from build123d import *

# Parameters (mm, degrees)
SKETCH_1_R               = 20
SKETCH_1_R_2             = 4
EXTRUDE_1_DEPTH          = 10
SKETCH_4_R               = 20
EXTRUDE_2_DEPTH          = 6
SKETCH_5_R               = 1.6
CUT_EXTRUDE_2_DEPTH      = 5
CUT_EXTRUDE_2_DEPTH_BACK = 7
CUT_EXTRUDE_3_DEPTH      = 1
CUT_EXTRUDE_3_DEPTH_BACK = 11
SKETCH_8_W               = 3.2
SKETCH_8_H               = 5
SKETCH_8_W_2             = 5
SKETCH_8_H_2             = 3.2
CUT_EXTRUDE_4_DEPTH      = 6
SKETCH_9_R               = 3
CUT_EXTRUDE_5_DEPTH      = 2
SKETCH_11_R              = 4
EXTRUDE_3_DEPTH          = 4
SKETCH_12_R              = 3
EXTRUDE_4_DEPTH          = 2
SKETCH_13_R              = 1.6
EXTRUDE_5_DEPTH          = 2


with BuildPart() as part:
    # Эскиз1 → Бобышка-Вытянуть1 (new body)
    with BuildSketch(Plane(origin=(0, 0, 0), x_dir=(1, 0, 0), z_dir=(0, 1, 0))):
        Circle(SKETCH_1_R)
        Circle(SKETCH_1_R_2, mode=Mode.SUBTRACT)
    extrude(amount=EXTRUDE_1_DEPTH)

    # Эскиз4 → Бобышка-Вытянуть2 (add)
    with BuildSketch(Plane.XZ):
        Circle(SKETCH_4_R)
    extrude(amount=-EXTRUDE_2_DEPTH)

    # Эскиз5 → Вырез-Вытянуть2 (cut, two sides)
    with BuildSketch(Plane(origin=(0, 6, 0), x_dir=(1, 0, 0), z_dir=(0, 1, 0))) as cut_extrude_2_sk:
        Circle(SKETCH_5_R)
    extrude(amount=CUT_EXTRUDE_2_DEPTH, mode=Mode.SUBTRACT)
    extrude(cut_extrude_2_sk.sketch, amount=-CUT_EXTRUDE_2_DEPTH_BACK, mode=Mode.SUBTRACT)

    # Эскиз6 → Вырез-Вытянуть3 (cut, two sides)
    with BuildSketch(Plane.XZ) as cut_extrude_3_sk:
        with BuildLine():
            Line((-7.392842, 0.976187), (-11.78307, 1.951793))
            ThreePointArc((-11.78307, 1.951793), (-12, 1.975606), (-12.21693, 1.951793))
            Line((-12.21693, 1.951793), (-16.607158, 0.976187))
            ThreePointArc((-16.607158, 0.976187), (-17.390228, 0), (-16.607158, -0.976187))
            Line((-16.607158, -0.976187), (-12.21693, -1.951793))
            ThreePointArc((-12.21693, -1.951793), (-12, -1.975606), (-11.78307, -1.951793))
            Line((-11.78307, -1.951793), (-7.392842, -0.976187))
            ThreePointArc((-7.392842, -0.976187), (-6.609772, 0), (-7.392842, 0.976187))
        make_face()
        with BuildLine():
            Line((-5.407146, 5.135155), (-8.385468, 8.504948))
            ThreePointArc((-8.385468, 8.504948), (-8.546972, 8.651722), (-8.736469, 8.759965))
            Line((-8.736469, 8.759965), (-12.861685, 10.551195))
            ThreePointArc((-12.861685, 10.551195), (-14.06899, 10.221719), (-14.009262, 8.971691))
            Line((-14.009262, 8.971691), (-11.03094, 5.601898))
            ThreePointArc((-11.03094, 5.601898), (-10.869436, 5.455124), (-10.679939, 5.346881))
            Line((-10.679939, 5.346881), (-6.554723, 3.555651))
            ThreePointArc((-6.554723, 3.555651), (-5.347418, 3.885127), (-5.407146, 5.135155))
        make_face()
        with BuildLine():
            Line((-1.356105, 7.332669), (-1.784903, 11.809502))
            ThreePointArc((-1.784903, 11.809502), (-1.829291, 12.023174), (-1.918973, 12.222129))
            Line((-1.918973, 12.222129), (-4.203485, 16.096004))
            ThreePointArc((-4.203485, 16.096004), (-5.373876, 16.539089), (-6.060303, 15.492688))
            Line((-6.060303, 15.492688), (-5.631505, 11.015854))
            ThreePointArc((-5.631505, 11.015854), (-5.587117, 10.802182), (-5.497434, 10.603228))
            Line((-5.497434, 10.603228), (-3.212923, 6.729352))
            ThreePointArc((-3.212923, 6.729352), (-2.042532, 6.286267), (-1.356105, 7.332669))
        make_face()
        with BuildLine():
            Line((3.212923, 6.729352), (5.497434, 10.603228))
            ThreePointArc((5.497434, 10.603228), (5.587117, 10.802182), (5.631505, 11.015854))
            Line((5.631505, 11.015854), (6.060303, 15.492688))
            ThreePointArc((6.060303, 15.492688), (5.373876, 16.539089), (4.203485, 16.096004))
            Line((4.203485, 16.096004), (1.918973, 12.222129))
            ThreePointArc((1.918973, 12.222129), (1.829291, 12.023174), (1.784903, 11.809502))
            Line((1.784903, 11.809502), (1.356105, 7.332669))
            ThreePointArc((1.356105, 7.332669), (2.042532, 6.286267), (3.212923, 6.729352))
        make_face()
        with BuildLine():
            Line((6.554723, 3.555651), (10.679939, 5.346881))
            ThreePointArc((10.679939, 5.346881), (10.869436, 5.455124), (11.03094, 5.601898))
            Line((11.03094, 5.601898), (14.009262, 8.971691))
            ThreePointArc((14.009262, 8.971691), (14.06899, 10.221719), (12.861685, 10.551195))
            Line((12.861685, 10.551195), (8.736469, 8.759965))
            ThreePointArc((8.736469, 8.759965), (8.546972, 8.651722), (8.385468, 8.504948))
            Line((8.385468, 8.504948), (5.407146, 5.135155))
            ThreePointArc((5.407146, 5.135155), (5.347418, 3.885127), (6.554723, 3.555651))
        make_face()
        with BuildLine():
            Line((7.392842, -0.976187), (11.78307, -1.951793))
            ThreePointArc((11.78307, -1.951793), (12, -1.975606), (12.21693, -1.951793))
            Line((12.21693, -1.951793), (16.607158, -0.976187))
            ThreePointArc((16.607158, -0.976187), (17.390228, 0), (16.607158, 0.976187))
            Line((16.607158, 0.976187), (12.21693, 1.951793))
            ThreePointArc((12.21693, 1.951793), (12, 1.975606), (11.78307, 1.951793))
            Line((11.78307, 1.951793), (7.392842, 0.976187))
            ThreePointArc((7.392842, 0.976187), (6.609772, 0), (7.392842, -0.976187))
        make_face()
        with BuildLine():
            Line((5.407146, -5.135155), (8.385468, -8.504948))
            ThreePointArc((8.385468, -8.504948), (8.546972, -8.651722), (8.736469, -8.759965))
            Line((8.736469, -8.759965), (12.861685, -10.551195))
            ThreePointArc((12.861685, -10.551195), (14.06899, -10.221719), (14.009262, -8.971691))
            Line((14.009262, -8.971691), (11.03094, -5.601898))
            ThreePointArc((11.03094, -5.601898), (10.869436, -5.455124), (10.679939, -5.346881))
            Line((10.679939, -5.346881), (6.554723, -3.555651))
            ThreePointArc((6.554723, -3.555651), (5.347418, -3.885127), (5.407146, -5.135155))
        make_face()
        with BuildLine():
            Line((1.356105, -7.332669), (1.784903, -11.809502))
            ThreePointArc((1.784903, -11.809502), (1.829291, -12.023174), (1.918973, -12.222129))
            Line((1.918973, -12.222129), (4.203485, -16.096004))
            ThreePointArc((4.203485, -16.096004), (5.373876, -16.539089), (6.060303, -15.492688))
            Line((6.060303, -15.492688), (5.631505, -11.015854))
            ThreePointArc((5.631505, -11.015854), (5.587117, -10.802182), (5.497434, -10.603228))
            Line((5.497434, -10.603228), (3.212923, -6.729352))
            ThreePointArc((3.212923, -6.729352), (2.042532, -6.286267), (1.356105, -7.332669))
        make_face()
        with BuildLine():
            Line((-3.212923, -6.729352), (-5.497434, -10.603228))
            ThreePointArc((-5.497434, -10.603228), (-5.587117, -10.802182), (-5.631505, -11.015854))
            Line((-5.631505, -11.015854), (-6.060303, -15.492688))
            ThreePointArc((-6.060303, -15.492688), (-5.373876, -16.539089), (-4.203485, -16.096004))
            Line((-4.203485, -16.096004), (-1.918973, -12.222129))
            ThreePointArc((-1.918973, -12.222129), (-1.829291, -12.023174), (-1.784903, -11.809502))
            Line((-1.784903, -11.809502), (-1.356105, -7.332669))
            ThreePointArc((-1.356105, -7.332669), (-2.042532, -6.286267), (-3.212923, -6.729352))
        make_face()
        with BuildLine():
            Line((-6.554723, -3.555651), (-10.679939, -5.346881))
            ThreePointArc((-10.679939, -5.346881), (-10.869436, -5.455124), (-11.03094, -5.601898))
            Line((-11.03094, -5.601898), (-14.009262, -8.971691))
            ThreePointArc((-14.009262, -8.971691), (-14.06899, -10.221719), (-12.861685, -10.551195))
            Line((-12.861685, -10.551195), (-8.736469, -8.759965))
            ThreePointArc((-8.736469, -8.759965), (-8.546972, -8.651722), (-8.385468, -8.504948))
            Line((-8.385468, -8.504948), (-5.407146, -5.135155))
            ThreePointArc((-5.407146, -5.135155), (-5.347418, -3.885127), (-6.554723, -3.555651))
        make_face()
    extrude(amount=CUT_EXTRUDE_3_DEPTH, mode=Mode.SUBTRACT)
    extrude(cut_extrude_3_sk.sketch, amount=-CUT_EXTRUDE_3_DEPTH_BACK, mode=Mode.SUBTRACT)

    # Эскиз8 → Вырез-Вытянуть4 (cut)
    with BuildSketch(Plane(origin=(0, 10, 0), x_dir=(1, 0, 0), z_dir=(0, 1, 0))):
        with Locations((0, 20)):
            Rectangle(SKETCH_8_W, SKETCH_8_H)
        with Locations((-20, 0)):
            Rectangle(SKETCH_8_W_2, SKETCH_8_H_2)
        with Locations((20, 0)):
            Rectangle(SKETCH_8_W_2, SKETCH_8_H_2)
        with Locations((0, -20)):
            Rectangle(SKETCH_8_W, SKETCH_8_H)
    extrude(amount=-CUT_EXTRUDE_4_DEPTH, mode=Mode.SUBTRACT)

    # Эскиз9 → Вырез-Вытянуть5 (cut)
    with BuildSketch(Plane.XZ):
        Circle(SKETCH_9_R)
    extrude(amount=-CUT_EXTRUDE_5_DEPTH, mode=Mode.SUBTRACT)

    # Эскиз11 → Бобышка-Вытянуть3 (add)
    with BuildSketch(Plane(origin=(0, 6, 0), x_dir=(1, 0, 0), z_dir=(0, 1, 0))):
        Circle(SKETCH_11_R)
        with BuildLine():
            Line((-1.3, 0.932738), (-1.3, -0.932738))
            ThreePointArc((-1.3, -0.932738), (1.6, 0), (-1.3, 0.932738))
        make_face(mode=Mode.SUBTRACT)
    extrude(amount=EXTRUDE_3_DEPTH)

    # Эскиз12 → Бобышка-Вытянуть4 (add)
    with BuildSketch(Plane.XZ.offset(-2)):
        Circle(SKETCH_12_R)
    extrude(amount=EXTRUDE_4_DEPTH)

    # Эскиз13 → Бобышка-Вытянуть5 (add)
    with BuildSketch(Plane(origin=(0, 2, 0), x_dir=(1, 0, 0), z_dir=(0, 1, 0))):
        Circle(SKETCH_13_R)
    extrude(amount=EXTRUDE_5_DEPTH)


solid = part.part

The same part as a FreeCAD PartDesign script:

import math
import FreeCAD as App
import Part
import Sketcher
from FreeCAD import Vector
Q = App.Units.Quantity

doc = App.newDocument("Part")
body = doc.addObject("PartDesign::Body", "Body")

sketch1 = body.newObject("Sketcher::SketchObject", "Sketch")
sketch1.AttachmentSupport = (doc.getObject("XZ_Plane"), [""])
sketch1.MapMode = "FlatFace"
sketch1.addGeometry(Part.Circle(Vector(0, 0, 0), Vector(0, 0, 1), 20), False)
sketch1.addGeometry(Part.Circle(Vector(0, 0, 0), Vector(0, 0, 1), 4), False)
sketch1.addConstraint(Sketcher.Constraint("Coincident", 0, 3, -1, 1))
sketch1.addConstraint(Sketcher.Constraint("Coincident", 1, 3, -1, 1))
sketch1.addConstraint(Sketcher.Constraint("Diameter", 0, Q("40 mm")))
sketch1.addConstraint(Sketcher.Constraint("Diameter", 1, Q("8 mm")))
pad1 = body.newObject("PartDesign::Pad", "Pad")
pad1.Profile = sketch1
pad1.Length = 10
pad1.Reversed = True

sketch2 = body.newObject("Sketcher::SketchObject", "Sketch001")
sketch2.AttachmentSupport = (doc.getObject("XZ_Plane"), [""])
sketch2.MapMode = "FlatFace"
sketch2.addGeometry(Part.Circle(Vector(0, 0, 0), Vector(0, 0, 1), 20), False)
sketch2.addConstraint(Sketcher.Constraint("Coincident", 0, 3, -1, 1))
sketch2.addConstraint(Sketcher.Constraint("Diameter", 0, Q("40 mm")))
pad2 = body.newObject("PartDesign::Pad", "Pad001")
pad2.Profile = sketch2
pad2.Length = 6
pad2.Reversed = True

sketch3 = body.newObject("Sketcher::SketchObject", "Sketch002")
sketch3.AttachmentSupport = (doc.getObject("XZ_Plane"), [""])
sketch3.MapMode = "FlatFace"
sketch3.AttachmentOffset = App.Placement(Vector(0, 0, -6), App.Rotation())
sketch3.addGeometry(Part.Circle(Vector(0, 0, 0), Vector(0, 0, 1), 1.6), False)
sketch3.addConstraint(Sketcher.Constraint("Coincident", 0, 3, -1, 1))
sketch3.addConstraint(Sketcher.Constraint("Diameter", 0, Q("3.2 mm")))
pocket1 = body.newObject("PartDesign::Pocket", "Pocket")
pocket1.Profile = sketch3
pocket1.Type = "ThroughAll"
pocket1.Midplane = True

sketch4 = body.newObject("Sketcher::SketchObject", "Sketch003")
sketch4.AttachmentSupport = (doc.getObject("XZ_Plane"), [""])
sketch4.MapMode = "FlatFace"
sketch4.addGeometry(Part.LineSegment(Vector(-7.39, 0.98, 0), Vector(-11.78, 1.95, 0)), False)
sketch4.addGeometry(Part.ArcOfCircle(Part.Circle(Vector(-12, 0.98, 0), Vector(0, 0, 1), 1), math.radians(77), math.radians(103)), False)
sketch4.addGeometry(Part.LineSegment(Vector(-12.22, 1.95, 0), Vector(-16.61, 0.98, 0)), False)
sketch4.addGeometry(Part.ArcOfCircle(Part.Circle(Vector(-16.39, 0, 0), Vector(0, 0, 1), 1), math.radians(103), math.radians(257)), False)
sketch4.addGeometry(Part.LineSegment(Vector(-16.61, -0.98, 0), Vector(-12.22, -1.95, 0)), False)
sketch4.addGeometry(Part.ArcOfCircle(Part.Circle(Vector(-12, -0.98, 0), Vector(0, 0, 1), 1), math.radians(-103), math.radians(-77)), False)
sketch4.addGeometry(Part.LineSegment(Vector(-11.78, -1.95, 0), Vector(-7.39, -0.98, 0)), False)
sketch4.addGeometry(Part.ArcOfCircle(Part.Circle(Vector(-7.61, 0, 0), Vector(0, 0, 1), 1), math.radians(-77), math.radians(77)), False)
sketch4.addGeometry(Part.LineSegment(Vector(-5.41, 5.14, 0), Vector(-8.39, 8.5, 0)), False)
sketch4.addGeometry(Part.ArcOfCircle(Part.Circle(Vector(-9.13, 7.84, 0), Vector(0, 0, 1), 1), math.radians(41), math.radians(67)), False)
sketch4.addGeometry(Part.LineSegment(Vector(-8.74, 8.76, 0), Vector(-12.86, 10.55, 0)), False)
sketch4.addGeometry(Part.ArcOfCircle(Part.Circle(Vector(-13.26, 9.63, 0), Vector(0, 0, 1), 1), math.radians(67), math.radians(221)), False)
sketch4.addGeometry(Part.LineSegment(Vector(-14.01, 8.97, 0), Vector(-11.03, 5.6, 0)), False)
sketch4.addGeometry(Part.ArcOfCircle(Part.Circle(Vector(-10.28, 6.26, 0), Vector(0, 0, 1), 1), math.radians(-139), math.radians(-113)), False)
sketch4.addGeometry(Part.LineSegment(Vector(-10.68, 5.35, 0), Vector(-6.55, 3.56, 0)), False)
sketch4.addGeometry(Part.ArcOfCircle(Part.Circle(Vector(-6.16, 4.47, 0), Vector(0, 0, 1), 1), math.radians(-113), math.radians(41)), False)
sketch4.addGeometry(Part.LineSegment(Vector(-1.36, 7.33, 0), Vector(-1.78, 11.81, 0)), False)
sketch4.addGeometry(Part.ArcOfCircle(Part.Circle(Vector(-2.78, 11.71, 0), Vector(0, 0, 1), 1), math.radians(5), math.radians(31)), False)
sketch4.addGeometry(Part.LineSegment(Vector(-1.92, 12.22, 0), Vector(-4.2, 16.1, 0)), False)
sketch4.addGeometry(Part.ArcOfCircle(Part.Circle(Vector(-5.06, 15.59, 0), Vector(0, 0, 1), 1), math.radians(31), math.radians(185)), False)
sketch4.addGeometry(Part.LineSegment(Vector(-6.06, 15.49, 0), Vector(-5.63, 11.02, 0)), False)
sketch4.addGeometry(Part.ArcOfCircle(Part.Circle(Vector(-4.64, 11.11, 0), Vector(0, 0, 1), 1), math.radians(-175), math.radians(-149)), False)
sketch4.addGeometry(Part.LineSegment(Vector(-5.5, 10.6, 0), Vector(-3.21, 6.73, 0)), False)
sketch4.addGeometry(Part.ArcOfCircle(Part.Circle(Vector(-2.35, 7.24, 0), Vector(0, 0, 1), 1), math.radians(-149), math.radians(5)), False)
sketch4.addGeometry(Part.LineSegment(Vector(3.21, 6.73, 0), Vector(5.5, 10.6, 0)), False)
sketch4.addGeometry(Part.ArcOfCircle(Part.Circle(Vector(4.64, 11.11, 0), Vector(0, 0, 1), 1), math.radians(-31), math.radians(-5)), False)
sketch4.addGeometry(Part.LineSegment(Vector(5.63, 11.02, 0), Vector(6.06, 15.49, 0)), False)
sketch4.addGeometry(Part.ArcOfCircle(Part.Circle(Vector(5.06, 15.59, 0), Vector(0, 0, 1), 1), math.radians(-5), math.radians(149)), False)
sketch4.addGeometry(Part.LineSegment(Vector(4.2, 16.1, 0), Vector(1.92, 12.22, 0)), False)
sketch4.addGeometry(Part.ArcOfCircle(Part.Circle(Vector(2.78, 11.71, 0), Vector(0, 0, 1), 1), math.radians(149), math.radians(175)), False)
sketch4.addGeometry(Part.LineSegment(Vector(1.78, 11.81, 0), Vector(1.36, 7.33, 0)), False)
sketch4.addGeometry(Part.ArcOfCircle(Part.Circle(Vector(2.35, 7.24, 0), Vector(0, 0, 1), 1), math.radians(175), math.radians(329)), False)
sketch4.addGeometry(Part.LineSegment(Vector(6.55, 3.56, 0), Vector(10.68, 5.35, 0)), False)
sketch4.addGeometry(Part.ArcOfCircle(Part.Circle(Vector(10.28, 6.26, 0), Vector(0, 0, 1), 1), math.radians(-67), math.radians(-41)), False)
sketch4.addGeometry(Part.LineSegment(Vector(11.03, 5.6, 0), Vector(14.01, 8.97, 0)), False)
sketch4.addGeometry(Part.ArcOfCircle(Part.Circle(Vector(13.26, 9.63, 0), Vector(0, 0, 1), 1), math.radians(-41), math.radians(113)), False)
sketch4.addGeometry(Part.LineSegment(Vector(12.86, 10.55, 0), Vector(8.74, 8.76, 0)), False)
sketch4.addGeometry(Part.ArcOfCircle(Part.Circle(Vector(9.13, 7.84, 0), Vector(0, 0, 1), 1), math.radians(113), math.radians(139)), False)
sketch4.addGeometry(Part.LineSegment(Vector(8.39, 8.5, 0), Vector(5.41, 5.14, 0)), False)
sketch4.addGeometry(Part.ArcOfCircle(Part.Circle(Vector(6.16, 4.47, 0), Vector(0, 0, 1), 1), math.radians(139), math.radians(293)), False)
sketch4.addGeometry(Part.LineSegment(Vector(7.39, -0.98, 0), Vector(11.78, -1.95, 0)), False)
sketch4.addGeometry(Part.ArcOfCircle(Part.Circle(Vector(12, -0.98, 0), Vector(0, 0, 1), 1), math.radians(-103), math.radians(-77)), False)
sketch4.addGeometry(Part.LineSegment(Vector(12.22, -1.95, 0), Vector(16.61, -0.98, 0)), False)
sketch4.addGeometry(Part.ArcOfCircle(Part.Circle(Vector(16.39, 0, 0), Vector(0, 0, 1), 1), math.radians(-77), math.radians(77)), False)
sketch4.addGeometry(Part.LineSegment(Vector(16.61, 0.98, 0), Vector(12.22, 1.95, 0)), False)
sketch4.addGeometry(Part.ArcOfCircle(Part.Circle(Vector(12, 0.98, 0), Vector(0, 0, 1), 1), math.radians(77), math.radians(103)), False)
sketch4.addGeometry(Part.LineSegment(Vector(11.78, 1.95, 0), Vector(7.39, 0.98, 0)), False)
sketch4.addGeometry(Part.ArcOfCircle(Part.Circle(Vector(7.61, 0, 0), Vector(0, 0, 1), 1), math.radians(103), math.radians(257)), False)
sketch4.addGeometry(Part.LineSegment(Vector(5.41, -5.14, 0), Vector(8.39, -8.5, 0)), False)
sketch4.addGeometry(Part.ArcOfCircle(Part.Circle(Vector(9.13, -7.84, 0), Vector(0, 0, 1), 1), math.radians(-139), math.radians(-113)), False)
sketch4.addGeometry(Part.LineSegment(Vector(8.74, -8.76, 0), Vector(12.86, -10.55, 0)), False)
sketch4.addGeometry(Part.ArcOfCircle(Part.Circle(Vector(13.26, -9.63, 0), Vector(0, 0, 1), 1), math.radians(-113), math.radians(41)), False)
sketch4.addGeometry(Part.LineSegment(Vector(14.01, -8.97, 0), Vector(11.03, -5.6, 0)), False)
sketch4.addGeometry(Part.ArcOfCircle(Part.Circle(Vector(10.28, -6.26, 0), Vector(0, 0, 1), 1), math.radians(41), math.radians(67)), False)
sketch4.addGeometry(Part.LineSegment(Vector(10.68, -5.35, 0), Vector(6.55, -3.56, 0)), False)
sketch4.addGeometry(Part.ArcOfCircle(Part.Circle(Vector(6.16, -4.47, 0), Vector(0, 0, 1), 1), math.radians(67), math.radians(221)), False)
sketch4.addGeometry(Part.LineSegment(Vector(1.36, -7.33, 0), Vector(1.78, -11.81, 0)), False)
sketch4.addGeometry(Part.ArcOfCircle(Part.Circle(Vector(2.78, -11.71, 0), Vector(0, 0, 1), 1), math.radians(-175), math.radians(-149)), False)
sketch4.addGeometry(Part.LineSegment(Vector(1.92, -12.22, 0), Vector(4.2, -16.1, 0)), False)
sketch4.addGeometry(Part.ArcOfCircle(Part.Circle(Vector(5.06, -15.59, 0), Vector(0, 0, 1), 1), math.radians(-149), math.radians(5)), False)
sketch4.addGeometry(Part.LineSegment(Vector(6.06, -15.49, 0), Vector(5.63, -11.02, 0)), False)
sketch4.addGeometry(Part.ArcOfCircle(Part.Circle(Vector(4.64, -11.11, 0), Vector(0, 0, 1), 1), math.radians(5), math.radians(31)), False)
sketch4.addGeometry(Part.LineSegment(Vector(5.5, -10.6, 0), Vector(3.21, -6.73, 0)), False)
sketch4.addGeometry(Part.ArcOfCircle(Part.Circle(Vector(2.35, -7.24, 0), Vector(0, 0, 1), 1), math.radians(31), math.radians(185)), False)
sketch4.addGeometry(Part.LineSegment(Vector(-3.21, -6.73, 0), Vector(-5.5, -10.6, 0)), False)
sketch4.addGeometry(Part.ArcOfCircle(Part.Circle(Vector(-4.64, -11.11, 0), Vector(0, 0, 1), 1), math.radians(149), math.radians(175)), False)
sketch4.addGeometry(Part.LineSegment(Vector(-5.63, -11.02, 0), Vector(-6.06, -15.49, 0)), False)
sketch4.addGeometry(Part.ArcOfCircle(Part.Circle(Vector(-5.06, -15.59, 0), Vector(0, 0, 1), 1), math.radians(175), math.radians(329)), False)
sketch4.addGeometry(Part.LineSegment(Vector(-4.2, -16.1, 0), Vector(-1.92, -12.22, 0)), False)
sketch4.addGeometry(Part.ArcOfCircle(Part.Circle(Vector(-2.78, -11.71, 0), Vector(0, 0, 1), 1), math.radians(-31), math.radians(-5)), False)
sketch4.addGeometry(Part.LineSegment(Vector(-1.78, -11.81, 0), Vector(-1.36, -7.33, 0)), False)
sketch4.addGeometry(Part.ArcOfCircle(Part.Circle(Vector(-2.35, -7.24, 0), Vector(0, 0, 1), 1), math.radians(-5), math.radians(149)), False)
sketch4.addGeometry(Part.LineSegment(Vector(-6.55, -3.56, 0), Vector(-10.68, -5.35, 0)), False)
sketch4.addGeometry(Part.ArcOfCircle(Part.Circle(Vector(-10.28, -6.26, 0), Vector(0, 0, 1), 1), math.radians(113), math.radians(139)), False)
sketch4.addGeometry(Part.LineSegment(Vector(-11.03, -5.6, 0), Vector(-14.01, -8.97, 0)), False)
sketch4.addGeometry(Part.ArcOfCircle(Part.Circle(Vector(-13.26, -9.63, 0), Vector(0, 0, 1), 1), math.radians(139), math.radians(293)), False)
sketch4.addGeometry(Part.LineSegment(Vector(-12.86, -10.55, 0), Vector(-8.74, -8.76, 0)), False)
sketch4.addGeometry(Part.ArcOfCircle(Part.Circle(Vector(-9.13, -7.84, 0), Vector(0, 0, 1), 1), math.radians(-67), math.radians(-41)), False)
sketch4.addGeometry(Part.LineSegment(Vector(-8.39, -8.5, 0), Vector(-5.41, -5.14, 0)), False)
sketch4.addGeometry(Part.ArcOfCircle(Part.Circle(Vector(-6.16, -4.47, 0), Vector(0, 0, 1), 1), math.radians(-41), math.radians(113)), False)
sketch4.addConstraint(Sketcher.Constraint("Tangent", 0, 2, 1, 1))
sketch4.addConstraint(Sketcher.Constraint("Tangent", 1, 2, 2, 1))
sketch4.addConstraint(Sketcher.Constraint("Tangent", 2, 2, 3, 1))
sketch4.addConstraint(Sketcher.Constraint("Tangent", 3, 2, 4, 1))
sketch4.addConstraint(Sketcher.Constraint("Tangent", 4, 2, 5, 1))
sketch4.addConstraint(Sketcher.Constraint("Tangent", 5, 2, 6, 1))
sketch4.addConstraint(Sketcher.Constraint("Tangent", 6, 2, 7, 1))
sketch4.addConstraint(Sketcher.Constraint("Tangent", 7, 2, 0, 1))
sketch4.addConstraint(Sketcher.Constraint("Tangent", 8, 2, 9, 1))
sketch4.addConstraint(Sketcher.Constraint("Tangent", 9, 2, 10, 1))
sketch4.addConstraint(Sketcher.Constraint("Tangent", 10, 2, 11, 1))
sketch4.addConstraint(Sketcher.Constraint("Tangent", 11, 2, 12, 1))
sketch4.addConstraint(Sketcher.Constraint("Tangent", 12, 2, 13, 1))
sketch4.addConstraint(Sketcher.Constraint("Tangent", 13, 2, 14, 1))
sketch4.addConstraint(Sketcher.Constraint("Tangent", 14, 2, 15, 1))
sketch4.addConstraint(Sketcher.Constraint("Tangent", 15, 2, 8, 1))
sketch4.addConstraint(Sketcher.Constraint("Coincident", 16, 2, 17, 1))
sketch4.addConstraint(Sketcher.Constraint("Coincident", 17, 2, 18, 1))
sketch4.addConstraint(Sketcher.Constraint("Tangent", 18, 2, 19, 1))
sketch4.addConstraint(Sketcher.Constraint("Tangent", 19, 2, 20, 1))
sketch4.addConstraint(Sketcher.Constraint("Tangent", 20, 2, 21, 1))
sketch4.addConstraint(Sketcher.Constraint("Coincident", 21, 2, 22, 1))
sketch4.addConstraint(Sketcher.Constraint("Tangent", 22, 2, 23, 1))
sketch4.addConstraint(Sketcher.Constraint("Tangent", 23, 2, 16, 1))
sketch4.addConstraint(Sketcher.Constraint("Coincident", 24, 2, 25, 1))
sketch4.addConstraint(Sketcher.Constraint("Tangent", 25, 2, 26, 1))
sketch4.addConstraint(Sketcher.Constraint("Tangent", 26, 2, 27, 1))
sketch4.addConstraint(Sketcher.Constraint("Tangent", 27, 2, 28, 1))
sketch4.addConstraint(Sketcher.Constraint("Coincident", 28, 2, 29, 1))
sketch4.addConstraint(Sketcher.Constraint("Coincident", 29, 2, 30, 1))
sketch4.addConstraint(Sketcher.Constraint("Tangent", 30, 2, 31, 1))
sketch4.addConstraint(Sketcher.Constraint("Tangent", 31, 2, 24, 1))
sketch4.addConstraint(Sketcher.Constraint("Tangent", 32, 2, 33, 1))
sketch4.addConstraint(Sketcher.Constraint("Tangent", 33, 2, 34, 1))
sketch4.addConstraint(Sketcher.Constraint("Tangent", 34, 2, 35, 1))
sketch4.addConstraint(Sketcher.Constraint("Tangent", 35, 2, 36, 1))
sketch4.addConstraint(Sketcher.Constraint("Tangent", 36, 2, 37, 1))
sketch4.addConstraint(Sketcher.Constraint("Tangent", 37, 2, 38, 1))
sketch4.addConstraint(Sketcher.Constraint("Tangent", 38, 2, 39, 1))
sketch4.addConstraint(Sketcher.Constraint("Tangent", 39, 2, 32, 1))
sketch4.addConstraint(Sketcher.Constraint("Tangent", 40, 2, 41, 1))
sketch4.addConstraint(Sketcher.Constraint("Tangent", 41, 2, 42, 1))
sketch4.addConstraint(Sketcher.Constraint("Tangent", 42, 2, 43, 1))
sketch4.addConstraint(Sketcher.Constraint("Tangent", 43, 2, 44, 1))
sketch4.addConstraint(Sketcher.Constraint("Tangent", 44, 2, 45, 1))
sketch4.addConstraint(Sketcher.Constraint("Tangent", 45, 2, 46, 1))
sketch4.addConstraint(Sketcher.Constraint("Tangent", 46, 2, 47, 1))
sketch4.addConstraint(Sketcher.Constraint("Tangent", 47, 2, 40, 1))
sketch4.addConstraint(Sketcher.Constraint("Tangent", 48, 2, 49, 1))
sketch4.addConstraint(Sketcher.Constraint("Tangent", 49, 2, 50, 1))
sketch4.addConstraint(Sketcher.Constraint("Tangent", 50, 2, 51, 1))
sketch4.addConstraint(Sketcher.Constraint("Tangent", 51, 2, 52, 1))
sketch4.addConstraint(Sketcher.Constraint("Tangent", 52, 2, 53, 1))
sketch4.addConstraint(Sketcher.Constraint("Tangent", 53, 2, 54, 1))
sketch4.addConstraint(Sketcher.Constraint("Tangent", 54, 2, 55, 1))
sketch4.addConstraint(Sketcher.Constraint("Tangent", 55, 2, 48, 1))
sketch4.addConstraint(Sketcher.Constraint("Coincident", 56, 2, 57, 1))
sketch4.addConstraint(Sketcher.Constraint("Coincident", 57, 2, 58, 1))
sketch4.addConstraint(Sketcher.Constraint("Tangent", 58, 2, 59, 1))
sketch4.addConstraint(Sketcher.Constraint("Tangent", 59, 2, 60, 1))
sketch4.addConstraint(Sketcher.Constraint("Tangent", 60, 2, 61, 1))
sketch4.addConstraint(Sketcher.Constraint("Coincident", 61, 2, 62, 1))
sketch4.addConstraint(Sketcher.Constraint("Tangent", 62, 2, 63, 1))
sketch4.addConstraint(Sketcher.Constraint("Tangent", 63, 2, 56, 1))
sketch4.addConstraint(Sketcher.Constraint("Coincident", 64, 2, 65, 1))
sketch4.addConstraint(Sketcher.Constraint("Tangent", 65, 2, 66, 1))
sketch4.addConstraint(Sketcher.Constraint("Tangent", 66, 2, 67, 1))
sketch4.addConstraint(Sketcher.Constraint("Tangent", 67, 2, 68, 1))
sketch4.addConstraint(Sketcher.Constraint("Coincident", 68, 2, 69, 1))
sketch4.addConstraint(Sketcher.Constraint("Coincident", 69, 2, 70, 1))
sketch4.addConstraint(Sketcher.Constraint("Tangent", 70, 2, 71, 1))
sketch4.addConstraint(Sketcher.Constraint("Tangent", 71, 2, 64, 1))
sketch4.addConstraint(Sketcher.Constraint("Tangent", 72, 2, 73, 1))
sketch4.addConstraint(Sketcher.Constraint("Tangent", 73, 2, 74, 1))
sketch4.addConstraint(Sketcher.Constraint("Tangent", 74, 2, 75, 1))
sketch4.addConstraint(Sketcher.Constraint("Tangent", 75, 2, 76, 1))
sketch4.addConstraint(Sketcher.Constraint("Tangent", 76, 2, 77, 1))
sketch4.addConstraint(Sketcher.Constraint("Tangent", 77, 2, 78, 1))
sketch4.addConstraint(Sketcher.Constraint("Tangent", 78, 2, 79, 1))
sketch4.addConstraint(Sketcher.Constraint("Tangent", 79, 2, 72, 1))
sketch4.addConstraint(Sketcher.Constraint("Equal", 1, 5))
sketch4.addConstraint(Sketcher.Constraint("Equal", 3, 7))
sketch4.addConstraint(Sketcher.Constraint("Equal", 7, 11))
sketch4.addConstraint(Sketcher.Constraint("Equal", 9, 13))
sketch4.addConstraint(Sketcher.Constraint("Equal", 11, 15))
sketch4.addConstraint(Sketcher.Constraint("Equal", 15, 19))
sketch4.addConstraint(Sketcher.Constraint("Equal", 5, 21))
sketch4.addConstraint(Sketcher.Constraint("Equal", 19, 23))
sketch4.addConstraint(Sketcher.Constraint("Equal", 21, 25))
sketch4.addConstraint(Sketcher.Constraint("Equal", 23, 27))
sketch4.addConstraint(Sketcher.Constraint("Equal", 17, 29))
sketch4.addConstraint(Sketcher.Constraint("Equal", 27, 31))
sketch4.addConstraint(Sketcher.Constraint("Equal", 13, 33))
sketch4.addConstraint(Sketcher.Constraint("Equal", 31, 35))
sketch4.addConstraint(Sketcher.Constraint("Equal", 33, 37))
sketch4.addConstraint(Sketcher.Constraint("Equal", 35, 39))
sketch4.addConstraint(Sketcher.Constraint("Equal", 25, 41))
sketch4.addConstraint(Sketcher.Constraint("Equal", 39, 43))
sketch4.addConstraint(Sketcher.Constraint("Equal", 41, 45))
sketch4.addConstraint(Sketcher.Constraint("Equal", 43, 47))
sketch4.addConstraint(Sketcher.Constraint("Equal", 37, 49))
sketch4.addConstraint(Sketcher.Constraint("Equal", 47, 51))
sketch4.addConstraint(Sketcher.Constraint("Equal", 49, 53))
sketch4.addConstraint(Sketcher.Constraint("Equal", 51, 55))
sketch4.addConstraint(Sketcher.Constraint("Equal", 29, 57))
sketch4.addConstraint(Sketcher.Constraint("Equal", 55, 59))
sketch4.addConstraint(Sketcher.Constraint("Equal", 45, 61))
sketch4.addConstraint(Sketcher.Constraint("Equal", 59, 63))
sketch4.addConstraint(Sketcher.Constraint("Equal", 61, 65))
sketch4.addConstraint(Sketcher.Constraint("Equal", 63, 67))
sketch4.addConstraint(Sketcher.Constraint("Equal", 57, 69))
sketch4.addConstraint(Sketcher.Constraint("Equal", 67, 71))
sketch4.addConstraint(Sketcher.Constraint("Equal", 53, 73))
sketch4.addConstraint(Sketcher.Constraint("Equal", 71, 75))
sketch4.addConstraint(Sketcher.Constraint("Equal", 73, 77))
sketch4.addConstraint(Sketcher.Constraint("Equal", 75, 79))
sketch4.addConstraint(Sketcher.Constraint("Symmetric", 1, 3, 41, 3, -1, 1))
sketch4.addConstraint(Sketcher.Constraint("Symmetric", 3, 3, 43, 3, -1, 1))
sketch4.addConstraint(Sketcher.Constraint("Symmetric", 5, 3, 45, 3, -1, 1))
sketch4.addConstraint(Sketcher.Constraint("Symmetric", 7, 3, 47, 3, -1, 1))
sketch4.addConstraint(Sketcher.Constraint("Symmetric", 9, 3, 49, 3, -1, 1))
sketch4.addConstraint(Sketcher.Constraint("Symmetric", 11, 3, 51, 3, -1, 1))
sketch4.addConstraint(Sketcher.Constraint("Symmetric", 13, 3, 53, 3, -1, 1))
sketch4.addConstraint(Sketcher.Constraint("Symmetric", 15, 3, 55, 3, -1, 1))
sketch4.addConstraint(Sketcher.Constraint("Symmetric", 17, 3, 57, 3, -1, 1))
sketch4.addConstraint(Sketcher.Constraint("Symmetric", 19, 3, 59, 3, -1, 1))
sketch4.addConstraint(Sketcher.Constraint("Symmetric", 21, 3, 61, 3, -1, 1))
sketch4.addConstraint(Sketcher.Constraint("Symmetric", 23, 3, 63, 3, -1, 1))
sketch4.addConstraint(Sketcher.Constraint("Symmetric", 25, 3, 65, 3, -1, 1))
sketch4.addConstraint(Sketcher.Constraint("Symmetric", 27, 3, 67, 3, -1, 1))
sketch4.addConstraint(Sketcher.Constraint("Symmetric", 29, 3, 69, 3, -1, 1))
sketch4.addConstraint(Sketcher.Constraint("Symmetric", 31, 3, 71, 3, -1, 1))
sketch4.addConstraint(Sketcher.Constraint("Symmetric", 33, 3, 73, 3, -1, 1))
sketch4.addConstraint(Sketcher.Constraint("Symmetric", 35, 3, 75, 3, -1, 1))
sketch4.addConstraint(Sketcher.Constraint("Symmetric", 37, 3, 77, 3, -1, 1))
sketch4.addConstraint(Sketcher.Constraint("Symmetric", 39, 3, 79, 3, -1, 1))
sketch4.addConstraint(Sketcher.Constraint("Symmetric", 21, 3, 25, 3, -2))
sketch4.addConstraint(Sketcher.Constraint("Symmetric", 19, 3, 27, 3, -2))
sketch4.addConstraint(Sketcher.Constraint("Symmetric", 17, 3, 29, 3, -2))
sketch4.addConstraint(Sketcher.Constraint("Symmetric", 23, 3, 31, 3, -2))
sketch4.addConstraint(Sketcher.Constraint("Symmetric", 13, 3, 33, 3, -2))
sketch4.addConstraint(Sketcher.Constraint("Symmetric", 11, 3, 35, 3, -2))
sketch4.addConstraint(Sketcher.Constraint("Symmetric", 9, 3, 37, 3, -2))
sketch4.addConstraint(Sketcher.Constraint("Symmetric", 15, 3, 39, 3, -2))
sketch4.addConstraint(Sketcher.Constraint("Symmetric", 5, 3, 41, 3, -2))
sketch4.addConstraint(Sketcher.Constraint("PointOnObject", 3, 3, -1))
sketch4.addConstraint(Sketcher.Constraint("PointOnObject", 7, 3, -1))
sketch4.addConstraint(Sketcher.Constraint("Parallel", 0, 4))
sketch4.addConstraint(Sketcher.Constraint("Parallel", 8, 12))
sketch4.addConstraint(Sketcher.Constraint("Parallel", 10, 14))
sketch4.addConstraint(Sketcher.Constraint("Parallel", 16, 20))
sketch4.addConstraint(Sketcher.Constraint("Parallel", 18, 22))
sketch4.addConstraint(Sketcher.Constraint("Horizontal", 21, 2, 24, 2))
sketch4.addConstraint(Sketcher.Constraint("Horizontal", 17, 2, 28, 2))
sketch4.addConstraint(Sketcher.Constraint("Horizontal", 16, 2, 29, 2))
sketch4.addConstraint(Sketcher.Constraint("Horizontal", 61, 2, 64, 2))
sketch4.addConstraint(Sketcher.Constraint("Horizontal", 57, 2, 68, 2))
sketch4.addConstraint(Sketcher.Constraint("Horizontal", 56, 2, 69, 2))
sketch4.addConstraint(Sketcher.Constraint("Vertical", 29, 2, 56, 2))
sketch4.addConstraint(Sketcher.Constraint("Vertical", 28, 2, 57, 2))
sketch4.addConstraint(Sketcher.Constraint("Vertical", 24, 2, 61, 2))
sketch4.addConstraint(Sketcher.Constraint("Equal", 6, 8))
sketch4.addConstraint(Sketcher.Constraint("Equal", 8, 10))
sketch4.addConstraint(Sketcher.Constraint("Equal", 14, 16))
sketch4.addConstraint(Sketcher.Constraint("Equal", 16, 18))
sketch4.addConstraint(Sketcher.Constraint("Equal", 18, 20))
sketch4.addConstraint(Sketcher.Constraint("Equal", 20, 22))
sketch4.addConstraint(Sketcher.Constraint("Radius", 3, Q("1 mm")))
sketch4.addConstraint(Sketcher.Constraint("DistanceX", 1, 3, -1, 1, Q("12 mm")))
sketch4.addConstraint(Sketcher.Constraint("Radius", 17, Q("1.000022 mm")))
sketch4.addConstraint(Sketcher.Constraint("Radius", 1, Q("0.999993 mm")))
sketch4.addConstraint(Sketcher.Constraint("Radius", 9, Q("0.999996 mm")))
sketch4.addConstraint(Sketcher.Constraint("DistanceY", -1, 1, 21, 3, Q("11.111199 mm")))
sketch4.addConstraint(Sketcher.Constraint("DistanceY", -1, 1, 12, 2, Q("5.601898 mm")))
sketch4.addConstraint(Sketcher.Constraint("Distance", 16, Q("4.497322 mm")))
sketch4.addConstraint(Sketcher.Constraint("DistanceX", 3, 3, -1, 1, Q("16.390228 mm")))
sketch4.addConstraint(Sketcher.Constraint("DistanceY", -1, 1, 13, 3, Q("6.264138 mm")))
sketch4.addConstraint(Sketcher.Constraint("DistanceX", 17, 3, -1, 1, Q("2.780368 mm")))
sketch4.addConstraint(Sketcher.Constraint("DistanceY", -1, 1, 17, 3, Q("11.714152 mm")))
sketch4.addConstraint(Sketcher.Constraint("DistanceX", 19, 3, -1, 1, Q("5.064859 mm")))
sketch4.addConstraint(Sketcher.Constraint("DistanceX", 23, 3, -1, 1, Q("2.351549 mm")))
sketch4.addConstraint(Sketcher.Constraint("DistanceY", -1, 1, 8, 2, Q("8.504948 mm")))
sketch4.addConstraint(Sketcher.Constraint("DistanceX", 9, 2, -1, 1, Q("8.736469 mm")))
pocket2 = body.newObject("PartDesign::Pocket", "Pocket001")
pocket2.Profile = sketch4
pocket2.Type = "ThroughAll"
pocket2.Midplane = True

sketch5 = body.newObject("Sketcher::SketchObject", "Sketch004")
sketch5.AttachmentSupport = (doc.getObject("XZ_Plane"), [""])
sketch5.MapMode = "FlatFace"
sketch5.AttachmentOffset = App.Placement(Vector(0, 0, -10), App.Rotation())
sketch5.addGeometry(Part.LineSegment(Vector(-1.6, -22.5, 0), Vector(-1.6, -17.5, 0)), False)
sketch5.addGeometry(Part.LineSegment(Vector(-1.6, -17.5, 0), Vector(1.6, -17.5, 0)), False)
sketch5.addGeometry(Part.LineSegment(Vector(1.6, -17.5, 0), Vector(1.6, -22.5, 0)), False)
sketch5.addGeometry(Part.LineSegment(Vector(1.6, -22.5, 0), Vector(-1.6, -22.5, 0)), False)
sketch5.addGeometry(Part.LineSegment(Vector(-22.5, -1.6, 0), Vector(-22.5, 1.6, 0)), False)
sketch5.addGeometry(Part.LineSegment(Vector(-22.5, 1.6, 0), Vector(-17.5, 1.6, 0)), False)
sketch5.addGeometry(Part.LineSegment(Vector(-17.5, 1.6, 0), Vector(-17.5, -1.6, 0)), False)
sketch5.addGeometry(Part.LineSegment(Vector(-17.5, -1.6, 0), Vector(-22.5, -1.6, 0)), False)
sketch5.addGeometry(Part.LineSegment(Vector(17.5, -1.6, 0), Vector(17.5, 1.6, 0)), False)
sketch5.addGeometry(Part.LineSegment(Vector(17.5, 1.6, 0), Vector(22.5, 1.6, 0)), False)
sketch5.addGeometry(Part.LineSegment(Vector(22.5, 1.6, 0), Vector(22.5, -1.6, 0)), False)
sketch5.addGeometry(Part.LineSegment(Vector(22.5, -1.6, 0), Vector(17.5, -1.6, 0)), False)
sketch5.addGeometry(Part.LineSegment(Vector(-1.6, 17.5, 0), Vector(-1.6, 22.5, 0)), False)
sketch5.addGeometry(Part.LineSegment(Vector(-1.6, 22.5, 0), Vector(1.6, 22.5, 0)), False)
sketch5.addGeometry(Part.LineSegment(Vector(1.6, 22.5, 0), Vector(1.6, 17.5, 0)), False)
sketch5.addGeometry(Part.LineSegment(Vector(1.6, 17.5, 0), Vector(-1.6, 17.5, 0)), False)
sketch5.addConstraint(Sketcher.Constraint("Coincident", 0, 2, 1, 1))
sketch5.addConstraint(Sketcher.Constraint("Coincident", 1, 2, 2, 1))
sketch5.addConstraint(Sketcher.Constraint("Coincident", 2, 2, 3, 1))
sketch5.addConstraint(Sketcher.Constraint("Coincident", 3, 2, 0, 1))
sketch5.addConstraint(Sketcher.Constraint("Coincident", 4, 2, 5, 1))
sketch5.addConstraint(Sketcher.Constraint("Coincident", 5, 2, 6, 1))
sketch5.addConstraint(Sketcher.Constraint("Coincident", 6, 2, 7, 1))
sketch5.addConstraint(Sketcher.Constraint("Coincident", 7, 2, 4, 1))
sketch5.addConstraint(Sketcher.Constraint("Coincident", 8, 2, 9, 1))
sketch5.addConstraint(Sketcher.Constraint("Coincident", 9, 2, 10, 1))
sketch5.addConstraint(Sketcher.Constraint("Coincident", 10, 2, 11, 1))
sketch5.addConstraint(Sketcher.Constraint("Coincident", 11, 2, 8, 1))
sketch5.addConstraint(Sketcher.Constraint("Coincident", 12, 2, 13, 1))
sketch5.addConstraint(Sketcher.Constraint("Coincident", 13, 2, 14, 1))
sketch5.addConstraint(Sketcher.Constraint("Coincident", 14, 2, 15, 1))
sketch5.addConstraint(Sketcher.Constraint("Coincident", 15, 2, 12, 1))
sketch5.addConstraint(Sketcher.Constraint("Vertical", 0))
sketch5.addConstraint(Sketcher.Constraint("Horizontal", 1))
sketch5.addConstraint(Sketcher.Constraint("Vertical", 2))
sketch5.addConstraint(Sketcher.Constraint("Horizontal", 3))
sketch5.addConstraint(Sketcher.Constraint("Vertical", 4))
sketch5.addConstraint(Sketcher.Constraint("Horizontal", 5))
sketch5.addConstraint(Sketcher.Constraint("Vertical", 6))
sketch5.addConstraint(Sketcher.Constraint("Horizontal", 7))
sketch5.addConstraint(Sketcher.Constraint("Vertical", 8))
sketch5.addConstraint(Sketcher.Constraint("Horizontal", 9))
sketch5.addConstraint(Sketcher.Constraint("Vertical", 10))
sketch5.addConstraint(Sketcher.Constraint("Horizontal", 11))
sketch5.addConstraint(Sketcher.Constraint("Vertical", 12))
sketch5.addConstraint(Sketcher.Constraint("Horizontal", 13))
sketch5.addConstraint(Sketcher.Constraint("Vertical", 14))
sketch5.addConstraint(Sketcher.Constraint("Horizontal", 15))
sketch5.addConstraint(Sketcher.Constraint("Symmetric", 6, 2, 8, 2, -1, 1))
sketch5.addConstraint(Sketcher.Constraint("Symmetric", 4, 2, 10, 2, -1, 1))
sketch5.addConstraint(Sketcher.Constraint("Symmetric", 2, 2, 12, 2, -1, 1))
sketch5.addConstraint(Sketcher.Constraint("Symmetric", 0, 2, 14, 2, -1, 1))
sketch5.addConstraint(Sketcher.Constraint("Horizontal", 5, 2, 8, 2))
sketch5.addConstraint(Sketcher.Constraint("Vertical", 3, 2, 12, 2))
sketch5.addConstraint(Sketcher.Constraint("Equal", 11, 0))
sketch5.addConstraint(Sketcher.Constraint("Equal", 15, 4))
sketch5.addConstraint(Sketcher.Constraint("DistanceX", 5, 1, 5, 2, Q("5 mm")))
sketch5.addConstraint(Sketcher.Constraint("DistanceX", 1, 1, 1, 2, Q("3.2 mm")))
sketch5.addConstraint(Sketcher.Constraint("DistanceX", 5, 2, 8, 2, Q("35 mm")))
sketch5.addConstraint(Sketcher.Constraint("DistanceY", 0, 2, -1, 1, Q("17.5 mm")))
pocket3 = body.newObject("PartDesign::Pocket", "Pocket002")
pocket3.Profile = sketch5
pocket3.Length = 6
pocket3.Reversed = True

sketch6 = body.newObject("Sketcher::SketchObject", "Sketch005")
sketch6.AttachmentSupport = (doc.getObject("XZ_Plane"), [""])
sketch6.MapMode = "FlatFace"
sketch6.addGeometry(Part.Circle(Vector(0, 0, 0), Vector(0, 0, 1), 3), False)
sketch6.addConstraint(Sketcher.Constraint("Coincident", 0, 3, -1, 1))
sketch6.addConstraint(Sketcher.Constraint("Diameter", 0, Q("6 mm")))
pocket4 = body.newObject("PartDesign::Pocket", "Pocket003")
pocket4.Profile = sketch6
pocket4.Length = 2

sketch7 = body.newObject("Sketcher::SketchObject", "Sketch006")
sketch7.AttachmentSupport = (doc.getObject("XZ_Plane"), [""])
sketch7.MapMode = "FlatFace"
sketch7.AttachmentOffset = App.Placement(Vector(0, 0, -6), App.Rotation())
sketch7.addGeometry(Part.Circle(Vector(0, 0, 0), Vector(0, 0, 1), 4), False)
sketch7.addGeometry(Part.LineSegment(Vector(-1.3, 0.9, 0), Vector(-1.3, -0.9, 0)), False)
sketch7.addGeometry(Part.ArcOfCircle(Part.Circle(Vector(0, 0, 0), Vector(0, 0, 1), 1.6), math.radians(-144), math.radians(144)), False)
sketch7.addConstraint(Sketcher.Constraint("Coincident", 1, 1, 2, 2))
sketch7.addConstraint(Sketcher.Constraint("Coincident", 2, 1, 1, 2))
sketch7.addConstraint(Sketcher.Constraint("Vertical", 1))
sketch7.addConstraint(Sketcher.Constraint("Coincident", 0, 3, -1, 1))
sketch7.addConstraint(Sketcher.Constraint("Coincident", 2, 3, -1, 1))
sketch7.addConstraint(Sketcher.Constraint("Diameter", 0, Q("8 mm")))
sketch7.addConstraint(Sketcher.Constraint("Radius", 2, Q("1.6 mm")))
sketch7.addConstraint(Sketcher.Constraint("DistanceX", 1, 1, -1, 1, Q("1.3 mm")))
pad3 = body.newObject("PartDesign::Pad", "Pad002")
pad3.Profile = sketch7
pad3.Length = 4
pad3.Reversed = True

sketch8 = body.newObject("Sketcher::SketchObject", "Sketch007")
sketch8.AttachmentSupport = (doc.getObject("XZ_Plane"), [""])
sketch8.MapMode = "FlatFace"
sketch8.AttachmentOffset = App.Placement(Vector(0, 0, -2), App.Rotation())
sketch8.addGeometry(Part.Circle(Vector(0, 0, 0), Vector(0, 0, 1), 3), False)
sketch8.addConstraint(Sketcher.Constraint("Coincident", 0, 3, -1, 1))
sketch8.addConstraint(Sketcher.Constraint("Diameter", 0, Q("6 mm")))
pad4 = body.newObject("PartDesign::Pad", "Pad003")
pad4.Profile = sketch8
pad4.Length = 2

sketch9 = body.newObject("Sketcher::SketchObject", "Sketch008")
sketch9.AttachmentSupport = (doc.getObject("XZ_Plane"), [""])
sketch9.MapMode = "FlatFace"
sketch9.AttachmentOffset = App.Placement(Vector(0, 0, -2), App.Rotation())
sketch9.addGeometry(Part.Circle(Vector(0, 0, 0), Vector(0, 0, 1), 1.6), False)
sketch9.addConstraint(Sketcher.Constraint("Coincident", 0, 3, -1, 1))
sketch9.addConstraint(Sketcher.Constraint("Diameter", 0, Q("3.2 mm")))
pad5 = body.newObject("PartDesign::Pad", "Pad004")
pad5.Profile = sketch9
pad5.Length = 2
pad5.Reversed = True

doc.recompute()
